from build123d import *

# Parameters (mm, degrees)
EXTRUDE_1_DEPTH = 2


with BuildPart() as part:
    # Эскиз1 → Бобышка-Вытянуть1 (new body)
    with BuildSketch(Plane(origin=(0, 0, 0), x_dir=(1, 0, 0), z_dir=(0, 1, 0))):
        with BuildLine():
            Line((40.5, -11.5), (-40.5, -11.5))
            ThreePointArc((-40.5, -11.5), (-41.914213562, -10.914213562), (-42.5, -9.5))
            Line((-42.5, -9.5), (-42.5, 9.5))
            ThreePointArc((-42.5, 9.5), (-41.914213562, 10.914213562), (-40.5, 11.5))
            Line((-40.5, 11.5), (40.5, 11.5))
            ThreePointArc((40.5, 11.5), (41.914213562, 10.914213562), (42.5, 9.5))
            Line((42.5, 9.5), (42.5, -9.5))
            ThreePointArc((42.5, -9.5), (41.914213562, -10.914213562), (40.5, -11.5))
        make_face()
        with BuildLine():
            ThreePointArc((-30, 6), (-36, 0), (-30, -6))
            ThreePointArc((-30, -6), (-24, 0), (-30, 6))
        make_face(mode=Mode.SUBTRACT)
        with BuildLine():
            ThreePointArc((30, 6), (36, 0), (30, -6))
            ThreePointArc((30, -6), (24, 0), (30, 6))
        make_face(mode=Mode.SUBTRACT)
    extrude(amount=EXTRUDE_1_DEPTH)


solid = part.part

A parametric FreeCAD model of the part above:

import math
import FreeCAD as App
import Part
import Sketcher
from FreeCAD import Vector

doc = App.newDocument("Part")
body = doc.addObject("PartDesign::Body", "Body")

# Sketch on XZ plane
sketch1 = body.newObject("Sketcher::SketchObject", "Sketch")
sketch1.AttachmentSupport = (doc.getObject("XZ_Plane"), [""])
sketch1.MapMode = "FlatFace"
sketch1.addGeometry([
    Part.LineSegment(Vector(-40.5, 11.5, 0), Vector(40.5, 11.5, 0)),  # 0
    Part.ArcOfCircle(Part.Circle(Vector(40.5, 9.5, 0), Vector(0, 0, 1), 2), math.radians(0), math.radians(90)),  # 1
    Part.LineSegment(Vector(42.5, 9.5, 0), Vector(42.5, -9.5, 0)),  # 2
    Part.ArcOfCircle(Part.Circle(Vector(40.5, -9.5, 0), Vector(0, 0, 1), 2), math.radians(-90), math.radians(0)),  # 3
    Part.LineSegment(Vector(40.5, -11.5, 0), Vector(-40.5, -11.5, 0)),  # 4
    Part.ArcOfCircle(Part.Circle(Vector(-40.5, -9.5, 0), Vector(0, 0, 1), 2), math.radians(-180), math.radians(-90)),  # 5
    Part.LineSegment(Vector(-42.5, -9.5, 0), Vector(-42.5, 9.5, 0)),  # 6
    Part.ArcOfCircle(Part.Circle(Vector(-40.5, 9.5, 0), Vector(0, 0, 1), 2), math.radians(90), math.radians(180)),  # 7
    Part.Circle(Vector(30, 0, 0), Vector(0, 0, 1), 6),  # 8
    Part.Circle(Vector(-30, 0, 0), Vector(0, 0, 1), 6),  # 9
], False)
sketch1.addConstraint([
    Sketcher.Constraint("Tangent", 0, 2, 1, 2),
    Sketcher.Constraint("Tangent", 1, 1, 2, 1),
    Sketcher.Constraint("Tangent", 2, 2, 3, 2),
    Sketcher.Constraint("Tangent", 3, 1, 4, 1),
    Sketcher.Constraint("Tangent", 4, 2, 5, 2),
    Sketcher.Constraint("Tangent", 5, 1, 6, 1),
    Sketcher.Constraint("Tangent", 6, 2, 7, 2),
    Sketcher.Constraint("Tangent", 7, 1, 0, 1),
    Sketcher.Constraint("Horizontal", 0),
    Sketcher.Constraint("Vertical", 2),
    Sketcher.Constraint("Horizontal", 4),
    Sketcher.Constraint("Vertical", 6),
    Sketcher.Constraint("Equal", 1, 3),
    Sketcher.Constraint("Equal", 3, 5),
    Sketcher.Constraint("Equal", 5, 7),
    Sketcher.Constraint("Equal", 8, 9),
    Sketcher.Constraint("Symmetric", 1, 3, 5, 3, -1, 1),
    Sketcher.Constraint("Symmetric", 8, 3, 9, 3, -1, 1),
    Sketcher.Constraint("PointOnObject", 8, 3, -1),
    Sketcher.Constraint("Diameter", 8, 12.0),
    Sketcher.Constraint("Radius", 1, 2.0),
    Sketcher.Constraint("DistanceX", 0, 1, 0, 2, 81.0),
    Sketcher.Constraint("DistanceY", 2, 2, 2, 1, 19.0),
    Sketcher.Constraint("DistanceX", -1, 1, 8, 3, 30.0),
])
pad1 = body.newObject("PartDesign::Pad", "Pad")
pad1.Profile = sketch1
pad1.Length = 2
pad1.Reversed = True

doc.recompute()
